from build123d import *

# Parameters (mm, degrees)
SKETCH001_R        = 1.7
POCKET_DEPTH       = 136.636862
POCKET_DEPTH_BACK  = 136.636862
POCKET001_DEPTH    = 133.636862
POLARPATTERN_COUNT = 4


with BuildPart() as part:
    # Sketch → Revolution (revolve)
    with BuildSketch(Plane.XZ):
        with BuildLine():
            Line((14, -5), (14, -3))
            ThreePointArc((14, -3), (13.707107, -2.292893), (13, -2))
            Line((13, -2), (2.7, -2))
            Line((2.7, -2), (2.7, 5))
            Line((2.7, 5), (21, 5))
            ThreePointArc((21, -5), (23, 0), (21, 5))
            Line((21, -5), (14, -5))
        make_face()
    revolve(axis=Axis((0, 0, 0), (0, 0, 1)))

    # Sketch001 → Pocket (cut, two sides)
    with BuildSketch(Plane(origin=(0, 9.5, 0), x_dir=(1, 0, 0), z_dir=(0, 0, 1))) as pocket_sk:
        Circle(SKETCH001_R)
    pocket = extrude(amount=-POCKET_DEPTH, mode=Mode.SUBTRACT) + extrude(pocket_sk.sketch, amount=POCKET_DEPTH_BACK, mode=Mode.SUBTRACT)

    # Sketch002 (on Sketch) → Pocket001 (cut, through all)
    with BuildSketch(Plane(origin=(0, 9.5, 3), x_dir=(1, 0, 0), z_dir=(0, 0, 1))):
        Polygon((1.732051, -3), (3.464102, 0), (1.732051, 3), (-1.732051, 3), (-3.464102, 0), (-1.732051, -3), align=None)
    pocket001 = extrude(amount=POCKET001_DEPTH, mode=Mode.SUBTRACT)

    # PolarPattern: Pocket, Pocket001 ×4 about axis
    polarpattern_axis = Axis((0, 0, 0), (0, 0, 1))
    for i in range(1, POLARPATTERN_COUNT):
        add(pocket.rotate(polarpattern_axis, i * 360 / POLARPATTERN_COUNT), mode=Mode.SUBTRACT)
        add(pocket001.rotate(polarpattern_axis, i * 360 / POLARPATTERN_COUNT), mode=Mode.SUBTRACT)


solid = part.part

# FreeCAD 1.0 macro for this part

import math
import FreeCAD as App
import Part
import Sketcher
from FreeCAD import Vector
Q = App.Units.Quantity


def add_polygon(sketch, points):
    """Adds a closed chain of lines whose ends are joined by coincident constraints."""
    first, n = sketch.GeometryCount, len(points)
    for a, b in zip(points, points[1:] + points[:1]):
        sketch.addGeometry(Part.LineSegment(App.Vector(*a, 0), App.Vector(*b, 0)), False)
    for i in range(n):
        sketch.addConstraint(Sketcher.Constraint("Coincident", first + i, 2, first + (i + 1) % n, 1))

doc = App.newDocument("Part")
params = doc.addObject("Spreadsheet::Sheet", "Params")
for row, (alias, value) in enumerate([
    ("sketch1_radius", "0.999999 mm"),
    ("sketch1_width", "7 mm"),
    ("sketch1_height", "2 mm"),
    ("sketch1_radius2", "7.25 mm"),
    ("sketch1_width2", "18.3 mm"),
    ("revolution_angle", "360 deg"),
    ("sketch2_diameter", "3.4 mm"),
], start=1):
    params.set(f"A{row}", alias)
    params.set(f"B{row}", "=" + value)
    params.setAlias(f"B{row}", alias)

body = doc.addObject("PartDesign::Body", "Body")

# Sketch on XZ plane
sketch1 = body.newObject("Sketcher::SketchObject", "Sketch")
sketch1.AttachmentSupport = (doc.getObject("XZ_Plane"), [""])
sketch1.MapMode = "FlatFace"
sketch1.addGeometry([
    Part.LineSegment(Vector(14, -3, 0), Vector(14, -5, 0)),  # 0
    Part.LineSegment(Vector(14, -5, 0), Vector(21, -5, 0)),  # 1
    Part.ArcOfCircle(Part.Circle(Vector(15.8, 0, 0), Vector(0, 0, 1), 7.2), math.radians(-44), math.radians(44)),  # 2
    Part.LineSegment(Vector(21, 5, 0), Vector(2.7, 5, 0)),  # 3
    Part.LineSegment(Vector(2.7, 5, 0), Vector(2.7, -2, 0)),  # 4
    Part.LineSegment(Vector(2.7, -2, 0), Vector(13, -2, 0)),  # 5
    Part.ArcOfCircle(Part.Circle(Vector(13, -3, 0), Vector(0, 0, 1), 1), math.radians(0), math.radians(90)),  # 6
], False)
sketch1.addConstraint([
    Sketcher.Constraint("Coincident", 0, 2, 1, 1),
    Sketcher.Constraint("Coincident", 1, 2, 2, 1),
    Sketcher.Constraint("Coincident", 2, 2, 3, 1),
    Sketcher.Constraint("Coincident", 3, 2, 4, 1),
    Sketcher.Constraint("Coincident", 4, 2, 5, 1),
    Sketcher.Constraint("Tangent", 5, 2, 6, 2),
    Sketcher.Constraint("Tangent", 6, 1, 0, 1),
    Sketcher.Constraint("Vertical", 0),
    Sketcher.Constraint("Horizontal", 1),
    Sketcher.Constraint("Horizontal", 3),
    Sketcher.Constraint("Vertical", 4),
    Sketcher.Constraint("Horizontal", 5),
    Sketcher.Constraint("Symmetric", 1, 2, 2, 2, -1),
    Sketcher.Constraint("Equal", 1, 4),
    Sketcher.Constraint("Radius", 6, 0.999999),
    Sketcher.Constraint("DistanceX", 1, 1, 1, 2, 7.0),
    Sketcher.Constraint("DistanceY", 0, 2, 0, 1, 2.0),
    Sketcher.Constraint("Radius", 2, 7.25),
    Sketcher.Constraint("DistanceX", 3, 2, 3, 1, 18.3),
    Sketcher.Constraint("DistanceX", -1, 1, 6, 3, 13.000001),
])
sketch1.setExpression("Constraints[14]", "Params.sketch1_radius")
sketch1.setExpression("Constraints[15]", "Params.sketch1_width")
sketch1.setExpression("Constraints[16]", "Params.sketch1_height")
sketch1.setExpression("Constraints[17]", "Params.sketch1_radius2")
sketch1.setExpression("Constraints[18]", "Params.sketch1_width2")
revolution = body.newObject("PartDesign::Revolution", "Revolution")
revolution.Profile = sketch1
revolution.ReferenceAxis = (sketch1, ["V_Axis"])
revolution.setExpression("Angle", "Params.revolution_angle")

# Sketch on XY plane
sketch2 = body.newObject("Sketcher::SketchObject", "Sketch001")
sketch2.AttachmentSupport = (doc.getObject("XY_Plane"), [""])
sketch2.MapMode = "FlatFace"
sketch2.addGeometry(Part.Circle(Vector(0, 9.5, 0), Vector(0, 0, 1), 1.7), False)
sketch2.addConstraint([
    Sketcher.Constraint("PointOnObject", 0, 3, -2),
    Sketcher.Constraint("Diameter", 0, 3.4),
    Sketcher.Constraint("DistanceY", -1, 1, 0, 3, 9.5),
])
sketch2.setExpression("Constraints[1]", "Params.sketch2_diameter")
pocket1 = body.newObject("PartDesign::Pocket", "Pocket")
pocket1.Profile = sketch2
pocket1.Type = "ThroughAll"
pocket1.Midplane = True

# Sketch on XY plane
sketch3 = body.newObject("Sketcher::SketchObject", "Sketch002")
sketch3.AttachmentSupport = (doc.getObject("XY_Plane"), [""])
sketch3.MapMode = "FlatFace"
sketch3.AttachmentOffset = App.Placement(Vector(0, 0, 3), App.Rotation())
add_polygon(sketch3, [(1.7, 6.5), (3.5, 9.5), (1.7, 12.5), (-1.7, 12.5), (-3.5, 9.5), (-1.7, 6.5)])  # lines 0-5
sketch3.addConstraint([
    Sketcher.Constraint("Horizontal", 2),
    Sketcher.Constraint("Horizontal", 5),
    Sketcher.Constraint("Symmetric", 0, 2, 3, 2, -2),
    Sketcher.Constraint("Parallel", 0, 3),
    Sketcher.Constraint("Parallel", 1, 4),
    Sketcher.Constraint("Vertical", 2, 2, 4, 2),
    Sketcher.Constraint("Vertical", 1, 2, 5, 2),
    Sketcher.Constraint("Angle", 0, Q("59.999997 deg")),
    Sketcher.Constraint("DistanceY", 0, 2, 1, 2, 3.0),
    Sketcher.Constraint("DistanceY", -1, 1, 0, 2, 9.5),
    Sketcher.Constraint("DistanceX", 2, 2, 2, 1, 3.464102),
])
pocket2 = body.newObject("PartDesign::Pocket", "Pocket001")
pocket2.Profile = sketch3
pocket2.Type = "ThroughAll"
pocket2.Reversed = True
doc.recompute()

polarpattern = body.newObject("PartDesign::PolarPattern", "PolarPattern")
polarpattern.Originals = [pocket1, pocket2]
polarpattern.Axis = (doc.getObject("Z_Axis"), [""])
polarpattern.Angle = 360
polarpattern.Occurrences = 4
body.Tip = polarpattern

doc.recompute()
